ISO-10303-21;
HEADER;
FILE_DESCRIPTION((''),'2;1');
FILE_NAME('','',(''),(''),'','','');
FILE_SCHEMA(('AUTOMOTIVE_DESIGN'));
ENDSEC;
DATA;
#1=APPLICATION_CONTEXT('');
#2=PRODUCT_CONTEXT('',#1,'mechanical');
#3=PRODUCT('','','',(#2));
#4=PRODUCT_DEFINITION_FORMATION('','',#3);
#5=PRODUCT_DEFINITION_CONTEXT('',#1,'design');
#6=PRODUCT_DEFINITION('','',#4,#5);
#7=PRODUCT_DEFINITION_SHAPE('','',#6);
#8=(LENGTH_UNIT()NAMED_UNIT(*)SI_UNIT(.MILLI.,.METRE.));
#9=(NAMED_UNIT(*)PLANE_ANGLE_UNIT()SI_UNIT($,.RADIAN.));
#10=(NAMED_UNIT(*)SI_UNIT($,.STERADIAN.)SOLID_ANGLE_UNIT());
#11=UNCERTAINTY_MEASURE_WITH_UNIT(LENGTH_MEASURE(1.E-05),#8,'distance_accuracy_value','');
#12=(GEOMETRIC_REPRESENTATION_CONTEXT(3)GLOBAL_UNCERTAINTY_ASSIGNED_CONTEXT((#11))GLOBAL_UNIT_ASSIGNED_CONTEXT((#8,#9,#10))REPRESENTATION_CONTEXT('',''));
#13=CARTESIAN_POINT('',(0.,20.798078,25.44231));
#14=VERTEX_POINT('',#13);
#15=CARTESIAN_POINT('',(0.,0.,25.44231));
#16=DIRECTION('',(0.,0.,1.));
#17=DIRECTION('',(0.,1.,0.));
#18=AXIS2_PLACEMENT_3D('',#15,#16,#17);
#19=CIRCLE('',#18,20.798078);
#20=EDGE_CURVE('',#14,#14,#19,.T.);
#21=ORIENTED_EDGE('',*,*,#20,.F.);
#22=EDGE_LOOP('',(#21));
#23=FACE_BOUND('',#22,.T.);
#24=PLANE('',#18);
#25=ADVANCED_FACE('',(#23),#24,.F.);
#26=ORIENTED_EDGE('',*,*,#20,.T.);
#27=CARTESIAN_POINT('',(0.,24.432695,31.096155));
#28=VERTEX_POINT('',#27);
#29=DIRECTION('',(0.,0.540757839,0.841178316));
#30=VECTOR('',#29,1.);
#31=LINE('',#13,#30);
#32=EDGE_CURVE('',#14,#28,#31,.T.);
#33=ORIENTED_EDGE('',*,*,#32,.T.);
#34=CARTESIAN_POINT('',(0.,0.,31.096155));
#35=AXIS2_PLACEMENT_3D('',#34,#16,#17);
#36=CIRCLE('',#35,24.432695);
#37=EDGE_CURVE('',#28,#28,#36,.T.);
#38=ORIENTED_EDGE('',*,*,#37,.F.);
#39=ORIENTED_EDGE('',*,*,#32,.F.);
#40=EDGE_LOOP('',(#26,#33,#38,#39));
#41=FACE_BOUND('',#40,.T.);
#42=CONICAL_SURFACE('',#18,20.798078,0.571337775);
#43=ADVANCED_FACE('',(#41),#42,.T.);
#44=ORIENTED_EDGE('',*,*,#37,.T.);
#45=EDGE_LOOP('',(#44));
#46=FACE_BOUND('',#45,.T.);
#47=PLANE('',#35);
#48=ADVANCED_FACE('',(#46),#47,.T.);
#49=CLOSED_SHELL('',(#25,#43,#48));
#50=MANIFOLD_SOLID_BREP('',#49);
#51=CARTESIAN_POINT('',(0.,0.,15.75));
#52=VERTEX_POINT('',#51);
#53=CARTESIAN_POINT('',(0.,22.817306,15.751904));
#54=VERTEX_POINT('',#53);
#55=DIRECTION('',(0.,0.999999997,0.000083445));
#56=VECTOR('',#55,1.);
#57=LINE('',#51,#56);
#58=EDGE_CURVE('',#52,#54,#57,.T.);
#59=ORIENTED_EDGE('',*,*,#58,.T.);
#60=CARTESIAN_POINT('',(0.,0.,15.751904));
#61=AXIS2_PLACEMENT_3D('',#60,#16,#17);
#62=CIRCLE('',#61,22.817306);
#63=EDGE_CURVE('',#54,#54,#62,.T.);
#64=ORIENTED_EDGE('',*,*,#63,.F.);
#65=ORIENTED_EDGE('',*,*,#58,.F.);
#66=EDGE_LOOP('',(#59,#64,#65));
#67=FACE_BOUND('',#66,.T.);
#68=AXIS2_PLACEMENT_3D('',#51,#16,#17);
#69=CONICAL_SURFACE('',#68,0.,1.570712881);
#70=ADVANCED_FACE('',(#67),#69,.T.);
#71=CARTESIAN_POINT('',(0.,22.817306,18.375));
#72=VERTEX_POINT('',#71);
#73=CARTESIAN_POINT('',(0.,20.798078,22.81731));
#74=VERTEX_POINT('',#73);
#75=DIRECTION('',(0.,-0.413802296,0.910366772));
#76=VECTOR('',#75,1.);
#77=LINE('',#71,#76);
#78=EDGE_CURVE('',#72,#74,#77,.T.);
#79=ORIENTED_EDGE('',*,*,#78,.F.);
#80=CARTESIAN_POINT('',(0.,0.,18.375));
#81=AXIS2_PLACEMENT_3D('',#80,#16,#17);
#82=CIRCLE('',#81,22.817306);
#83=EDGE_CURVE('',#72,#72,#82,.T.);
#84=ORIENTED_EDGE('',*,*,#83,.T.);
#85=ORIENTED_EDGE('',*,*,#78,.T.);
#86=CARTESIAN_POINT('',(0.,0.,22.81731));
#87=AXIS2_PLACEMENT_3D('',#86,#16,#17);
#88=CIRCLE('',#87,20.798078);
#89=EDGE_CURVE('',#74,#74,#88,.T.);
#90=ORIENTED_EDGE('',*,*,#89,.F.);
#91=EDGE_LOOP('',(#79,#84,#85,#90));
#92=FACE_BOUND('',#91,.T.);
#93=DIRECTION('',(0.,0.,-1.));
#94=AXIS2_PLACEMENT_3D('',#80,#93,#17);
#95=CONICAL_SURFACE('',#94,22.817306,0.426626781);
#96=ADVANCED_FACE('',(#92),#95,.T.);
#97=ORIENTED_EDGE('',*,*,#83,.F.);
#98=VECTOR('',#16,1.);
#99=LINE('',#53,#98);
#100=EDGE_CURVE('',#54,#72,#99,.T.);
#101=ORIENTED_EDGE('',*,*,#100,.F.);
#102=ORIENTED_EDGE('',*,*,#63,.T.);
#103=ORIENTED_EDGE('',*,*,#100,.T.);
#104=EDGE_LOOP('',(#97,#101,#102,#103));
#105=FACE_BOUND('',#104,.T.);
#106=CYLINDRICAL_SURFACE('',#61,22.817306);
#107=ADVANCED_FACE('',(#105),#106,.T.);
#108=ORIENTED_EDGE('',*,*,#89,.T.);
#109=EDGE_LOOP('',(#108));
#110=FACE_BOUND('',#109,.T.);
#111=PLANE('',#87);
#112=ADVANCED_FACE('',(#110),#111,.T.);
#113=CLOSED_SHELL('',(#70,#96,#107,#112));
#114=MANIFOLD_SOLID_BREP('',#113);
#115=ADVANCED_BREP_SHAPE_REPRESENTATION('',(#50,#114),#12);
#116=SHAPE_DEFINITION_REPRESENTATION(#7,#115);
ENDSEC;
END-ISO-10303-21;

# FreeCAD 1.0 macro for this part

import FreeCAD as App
import Part
import Sketcher


def add_polygon(sketch, points):
    """Adds a closed chain of lines whose ends are joined by coincident constraints."""
    first, n = sketch.GeometryCount, len(points)
    for a, b in zip(points, points[1:] + points[:1]):
        sketch.addGeometry(Part.LineSegment(App.Vector(*a, 0), App.Vector(*b, 0)), False)
    for i in range(n):
        sketch.addConstraint(Sketcher.Constraint("Coincident", first + i, 2, first + (i + 1) % n, 1))

doc = App.newDocument("Part")
params = doc.addObject("Spreadsheet::Sheet", "Params")
for row, (alias, value) in enumerate([
    ("revolution_angle", "360 deg"),
], start=1):
    params.set(f"A{row}", alias)
    params.set(f"B{row}", "=" + value)
    params.setAlias(f"B{row}", alias)

body = doc.addObject("PartDesign::Body", "Body")
body.AllowCompound = True

# Sketch on YZ plane
sketch1 = body.newObject("Sketcher::SketchObject", "Sketch")
sketch1.AttachmentSupport = (doc.getObject("YZ_Plane"), [""])
sketch1.MapMode = "FlatFace"
add_polygon(sketch1, [(24.432695, 31.096155), (0, 31.096155), (0, 25.44231), (20.798078, 25.44231)])  # lines 0-3
add_polygon(sketch1, [(20.798078, 22.81731), (0, 22.81731), (0, 15.75), (22.817306, 15.751904), (22.817306, 18.375)])  # lines 4-8
sketch1.addConstraint(Sketcher.Constraint("Horizontal", 0))
sketch1.addConstraint(Sketcher.Constraint("Vertical", 1))
sketch1.addConstraint(Sketcher.Constraint("Horizontal", 2))
sketch1.addConstraint(Sketcher.Constraint("Horizontal", 4))
sketch1.addConstraint(Sketcher.Constraint("Vertical", 5))
sketch1.addConstraint(Sketcher.Constraint("Vertical", 7))
sketch1.addConstraint(Sketcher.Constraint("PointOnObject", 0, 2, -2))
sketch1.addConstraint(Sketcher.Constraint("PointOnObject", 4, 2, -2))
sketch1.addConstraint(Sketcher.Constraint("Vertical", 2, 2, 8, 2))
sketch1.addConstraint(Sketcher.Constraint("DistanceY", -1, 1, 5, 2, 15.75))
sketch1.addConstraint(Sketcher.Constraint("DistanceY", -1, 1, 7, 2, 18.375))
sketch1.addConstraint(Sketcher.Constraint("DistanceY", 4, 2, 1, 2, 2.625))
sketch1.addConstraint(Sketcher.Constraint("DistanceX", 2, 1, 2, 2, 20.798078))
sketch1.addConstraint(Sketcher.Constraint("DistanceY", 5, 2, 5, 1, 7.06731))
sketch1.addConstraint(Sketcher.Constraint("Distance", 3, 6.721339))
sketch1.addConstraint(Sketcher.Constraint("DistanceX", 0, 2, 0, 1, 24.432695))
sketch1.addConstraint(Sketcher.Constraint("DistanceY", 7, 1, 7, 2, 2.623096))
sketch1.addConstraint(Sketcher.Constraint("DistanceX", 6, 2, 3, 2, 1.615389))
revolution = body.newObject("PartDesign::Revolution", "Revolution")
revolution.Profile = sketch1
revolution.ReferenceAxis = (sketch1, ["V_Axis"])
revolution.setExpression("Angle", "Params.revolution_angle")

doc.recompute()
